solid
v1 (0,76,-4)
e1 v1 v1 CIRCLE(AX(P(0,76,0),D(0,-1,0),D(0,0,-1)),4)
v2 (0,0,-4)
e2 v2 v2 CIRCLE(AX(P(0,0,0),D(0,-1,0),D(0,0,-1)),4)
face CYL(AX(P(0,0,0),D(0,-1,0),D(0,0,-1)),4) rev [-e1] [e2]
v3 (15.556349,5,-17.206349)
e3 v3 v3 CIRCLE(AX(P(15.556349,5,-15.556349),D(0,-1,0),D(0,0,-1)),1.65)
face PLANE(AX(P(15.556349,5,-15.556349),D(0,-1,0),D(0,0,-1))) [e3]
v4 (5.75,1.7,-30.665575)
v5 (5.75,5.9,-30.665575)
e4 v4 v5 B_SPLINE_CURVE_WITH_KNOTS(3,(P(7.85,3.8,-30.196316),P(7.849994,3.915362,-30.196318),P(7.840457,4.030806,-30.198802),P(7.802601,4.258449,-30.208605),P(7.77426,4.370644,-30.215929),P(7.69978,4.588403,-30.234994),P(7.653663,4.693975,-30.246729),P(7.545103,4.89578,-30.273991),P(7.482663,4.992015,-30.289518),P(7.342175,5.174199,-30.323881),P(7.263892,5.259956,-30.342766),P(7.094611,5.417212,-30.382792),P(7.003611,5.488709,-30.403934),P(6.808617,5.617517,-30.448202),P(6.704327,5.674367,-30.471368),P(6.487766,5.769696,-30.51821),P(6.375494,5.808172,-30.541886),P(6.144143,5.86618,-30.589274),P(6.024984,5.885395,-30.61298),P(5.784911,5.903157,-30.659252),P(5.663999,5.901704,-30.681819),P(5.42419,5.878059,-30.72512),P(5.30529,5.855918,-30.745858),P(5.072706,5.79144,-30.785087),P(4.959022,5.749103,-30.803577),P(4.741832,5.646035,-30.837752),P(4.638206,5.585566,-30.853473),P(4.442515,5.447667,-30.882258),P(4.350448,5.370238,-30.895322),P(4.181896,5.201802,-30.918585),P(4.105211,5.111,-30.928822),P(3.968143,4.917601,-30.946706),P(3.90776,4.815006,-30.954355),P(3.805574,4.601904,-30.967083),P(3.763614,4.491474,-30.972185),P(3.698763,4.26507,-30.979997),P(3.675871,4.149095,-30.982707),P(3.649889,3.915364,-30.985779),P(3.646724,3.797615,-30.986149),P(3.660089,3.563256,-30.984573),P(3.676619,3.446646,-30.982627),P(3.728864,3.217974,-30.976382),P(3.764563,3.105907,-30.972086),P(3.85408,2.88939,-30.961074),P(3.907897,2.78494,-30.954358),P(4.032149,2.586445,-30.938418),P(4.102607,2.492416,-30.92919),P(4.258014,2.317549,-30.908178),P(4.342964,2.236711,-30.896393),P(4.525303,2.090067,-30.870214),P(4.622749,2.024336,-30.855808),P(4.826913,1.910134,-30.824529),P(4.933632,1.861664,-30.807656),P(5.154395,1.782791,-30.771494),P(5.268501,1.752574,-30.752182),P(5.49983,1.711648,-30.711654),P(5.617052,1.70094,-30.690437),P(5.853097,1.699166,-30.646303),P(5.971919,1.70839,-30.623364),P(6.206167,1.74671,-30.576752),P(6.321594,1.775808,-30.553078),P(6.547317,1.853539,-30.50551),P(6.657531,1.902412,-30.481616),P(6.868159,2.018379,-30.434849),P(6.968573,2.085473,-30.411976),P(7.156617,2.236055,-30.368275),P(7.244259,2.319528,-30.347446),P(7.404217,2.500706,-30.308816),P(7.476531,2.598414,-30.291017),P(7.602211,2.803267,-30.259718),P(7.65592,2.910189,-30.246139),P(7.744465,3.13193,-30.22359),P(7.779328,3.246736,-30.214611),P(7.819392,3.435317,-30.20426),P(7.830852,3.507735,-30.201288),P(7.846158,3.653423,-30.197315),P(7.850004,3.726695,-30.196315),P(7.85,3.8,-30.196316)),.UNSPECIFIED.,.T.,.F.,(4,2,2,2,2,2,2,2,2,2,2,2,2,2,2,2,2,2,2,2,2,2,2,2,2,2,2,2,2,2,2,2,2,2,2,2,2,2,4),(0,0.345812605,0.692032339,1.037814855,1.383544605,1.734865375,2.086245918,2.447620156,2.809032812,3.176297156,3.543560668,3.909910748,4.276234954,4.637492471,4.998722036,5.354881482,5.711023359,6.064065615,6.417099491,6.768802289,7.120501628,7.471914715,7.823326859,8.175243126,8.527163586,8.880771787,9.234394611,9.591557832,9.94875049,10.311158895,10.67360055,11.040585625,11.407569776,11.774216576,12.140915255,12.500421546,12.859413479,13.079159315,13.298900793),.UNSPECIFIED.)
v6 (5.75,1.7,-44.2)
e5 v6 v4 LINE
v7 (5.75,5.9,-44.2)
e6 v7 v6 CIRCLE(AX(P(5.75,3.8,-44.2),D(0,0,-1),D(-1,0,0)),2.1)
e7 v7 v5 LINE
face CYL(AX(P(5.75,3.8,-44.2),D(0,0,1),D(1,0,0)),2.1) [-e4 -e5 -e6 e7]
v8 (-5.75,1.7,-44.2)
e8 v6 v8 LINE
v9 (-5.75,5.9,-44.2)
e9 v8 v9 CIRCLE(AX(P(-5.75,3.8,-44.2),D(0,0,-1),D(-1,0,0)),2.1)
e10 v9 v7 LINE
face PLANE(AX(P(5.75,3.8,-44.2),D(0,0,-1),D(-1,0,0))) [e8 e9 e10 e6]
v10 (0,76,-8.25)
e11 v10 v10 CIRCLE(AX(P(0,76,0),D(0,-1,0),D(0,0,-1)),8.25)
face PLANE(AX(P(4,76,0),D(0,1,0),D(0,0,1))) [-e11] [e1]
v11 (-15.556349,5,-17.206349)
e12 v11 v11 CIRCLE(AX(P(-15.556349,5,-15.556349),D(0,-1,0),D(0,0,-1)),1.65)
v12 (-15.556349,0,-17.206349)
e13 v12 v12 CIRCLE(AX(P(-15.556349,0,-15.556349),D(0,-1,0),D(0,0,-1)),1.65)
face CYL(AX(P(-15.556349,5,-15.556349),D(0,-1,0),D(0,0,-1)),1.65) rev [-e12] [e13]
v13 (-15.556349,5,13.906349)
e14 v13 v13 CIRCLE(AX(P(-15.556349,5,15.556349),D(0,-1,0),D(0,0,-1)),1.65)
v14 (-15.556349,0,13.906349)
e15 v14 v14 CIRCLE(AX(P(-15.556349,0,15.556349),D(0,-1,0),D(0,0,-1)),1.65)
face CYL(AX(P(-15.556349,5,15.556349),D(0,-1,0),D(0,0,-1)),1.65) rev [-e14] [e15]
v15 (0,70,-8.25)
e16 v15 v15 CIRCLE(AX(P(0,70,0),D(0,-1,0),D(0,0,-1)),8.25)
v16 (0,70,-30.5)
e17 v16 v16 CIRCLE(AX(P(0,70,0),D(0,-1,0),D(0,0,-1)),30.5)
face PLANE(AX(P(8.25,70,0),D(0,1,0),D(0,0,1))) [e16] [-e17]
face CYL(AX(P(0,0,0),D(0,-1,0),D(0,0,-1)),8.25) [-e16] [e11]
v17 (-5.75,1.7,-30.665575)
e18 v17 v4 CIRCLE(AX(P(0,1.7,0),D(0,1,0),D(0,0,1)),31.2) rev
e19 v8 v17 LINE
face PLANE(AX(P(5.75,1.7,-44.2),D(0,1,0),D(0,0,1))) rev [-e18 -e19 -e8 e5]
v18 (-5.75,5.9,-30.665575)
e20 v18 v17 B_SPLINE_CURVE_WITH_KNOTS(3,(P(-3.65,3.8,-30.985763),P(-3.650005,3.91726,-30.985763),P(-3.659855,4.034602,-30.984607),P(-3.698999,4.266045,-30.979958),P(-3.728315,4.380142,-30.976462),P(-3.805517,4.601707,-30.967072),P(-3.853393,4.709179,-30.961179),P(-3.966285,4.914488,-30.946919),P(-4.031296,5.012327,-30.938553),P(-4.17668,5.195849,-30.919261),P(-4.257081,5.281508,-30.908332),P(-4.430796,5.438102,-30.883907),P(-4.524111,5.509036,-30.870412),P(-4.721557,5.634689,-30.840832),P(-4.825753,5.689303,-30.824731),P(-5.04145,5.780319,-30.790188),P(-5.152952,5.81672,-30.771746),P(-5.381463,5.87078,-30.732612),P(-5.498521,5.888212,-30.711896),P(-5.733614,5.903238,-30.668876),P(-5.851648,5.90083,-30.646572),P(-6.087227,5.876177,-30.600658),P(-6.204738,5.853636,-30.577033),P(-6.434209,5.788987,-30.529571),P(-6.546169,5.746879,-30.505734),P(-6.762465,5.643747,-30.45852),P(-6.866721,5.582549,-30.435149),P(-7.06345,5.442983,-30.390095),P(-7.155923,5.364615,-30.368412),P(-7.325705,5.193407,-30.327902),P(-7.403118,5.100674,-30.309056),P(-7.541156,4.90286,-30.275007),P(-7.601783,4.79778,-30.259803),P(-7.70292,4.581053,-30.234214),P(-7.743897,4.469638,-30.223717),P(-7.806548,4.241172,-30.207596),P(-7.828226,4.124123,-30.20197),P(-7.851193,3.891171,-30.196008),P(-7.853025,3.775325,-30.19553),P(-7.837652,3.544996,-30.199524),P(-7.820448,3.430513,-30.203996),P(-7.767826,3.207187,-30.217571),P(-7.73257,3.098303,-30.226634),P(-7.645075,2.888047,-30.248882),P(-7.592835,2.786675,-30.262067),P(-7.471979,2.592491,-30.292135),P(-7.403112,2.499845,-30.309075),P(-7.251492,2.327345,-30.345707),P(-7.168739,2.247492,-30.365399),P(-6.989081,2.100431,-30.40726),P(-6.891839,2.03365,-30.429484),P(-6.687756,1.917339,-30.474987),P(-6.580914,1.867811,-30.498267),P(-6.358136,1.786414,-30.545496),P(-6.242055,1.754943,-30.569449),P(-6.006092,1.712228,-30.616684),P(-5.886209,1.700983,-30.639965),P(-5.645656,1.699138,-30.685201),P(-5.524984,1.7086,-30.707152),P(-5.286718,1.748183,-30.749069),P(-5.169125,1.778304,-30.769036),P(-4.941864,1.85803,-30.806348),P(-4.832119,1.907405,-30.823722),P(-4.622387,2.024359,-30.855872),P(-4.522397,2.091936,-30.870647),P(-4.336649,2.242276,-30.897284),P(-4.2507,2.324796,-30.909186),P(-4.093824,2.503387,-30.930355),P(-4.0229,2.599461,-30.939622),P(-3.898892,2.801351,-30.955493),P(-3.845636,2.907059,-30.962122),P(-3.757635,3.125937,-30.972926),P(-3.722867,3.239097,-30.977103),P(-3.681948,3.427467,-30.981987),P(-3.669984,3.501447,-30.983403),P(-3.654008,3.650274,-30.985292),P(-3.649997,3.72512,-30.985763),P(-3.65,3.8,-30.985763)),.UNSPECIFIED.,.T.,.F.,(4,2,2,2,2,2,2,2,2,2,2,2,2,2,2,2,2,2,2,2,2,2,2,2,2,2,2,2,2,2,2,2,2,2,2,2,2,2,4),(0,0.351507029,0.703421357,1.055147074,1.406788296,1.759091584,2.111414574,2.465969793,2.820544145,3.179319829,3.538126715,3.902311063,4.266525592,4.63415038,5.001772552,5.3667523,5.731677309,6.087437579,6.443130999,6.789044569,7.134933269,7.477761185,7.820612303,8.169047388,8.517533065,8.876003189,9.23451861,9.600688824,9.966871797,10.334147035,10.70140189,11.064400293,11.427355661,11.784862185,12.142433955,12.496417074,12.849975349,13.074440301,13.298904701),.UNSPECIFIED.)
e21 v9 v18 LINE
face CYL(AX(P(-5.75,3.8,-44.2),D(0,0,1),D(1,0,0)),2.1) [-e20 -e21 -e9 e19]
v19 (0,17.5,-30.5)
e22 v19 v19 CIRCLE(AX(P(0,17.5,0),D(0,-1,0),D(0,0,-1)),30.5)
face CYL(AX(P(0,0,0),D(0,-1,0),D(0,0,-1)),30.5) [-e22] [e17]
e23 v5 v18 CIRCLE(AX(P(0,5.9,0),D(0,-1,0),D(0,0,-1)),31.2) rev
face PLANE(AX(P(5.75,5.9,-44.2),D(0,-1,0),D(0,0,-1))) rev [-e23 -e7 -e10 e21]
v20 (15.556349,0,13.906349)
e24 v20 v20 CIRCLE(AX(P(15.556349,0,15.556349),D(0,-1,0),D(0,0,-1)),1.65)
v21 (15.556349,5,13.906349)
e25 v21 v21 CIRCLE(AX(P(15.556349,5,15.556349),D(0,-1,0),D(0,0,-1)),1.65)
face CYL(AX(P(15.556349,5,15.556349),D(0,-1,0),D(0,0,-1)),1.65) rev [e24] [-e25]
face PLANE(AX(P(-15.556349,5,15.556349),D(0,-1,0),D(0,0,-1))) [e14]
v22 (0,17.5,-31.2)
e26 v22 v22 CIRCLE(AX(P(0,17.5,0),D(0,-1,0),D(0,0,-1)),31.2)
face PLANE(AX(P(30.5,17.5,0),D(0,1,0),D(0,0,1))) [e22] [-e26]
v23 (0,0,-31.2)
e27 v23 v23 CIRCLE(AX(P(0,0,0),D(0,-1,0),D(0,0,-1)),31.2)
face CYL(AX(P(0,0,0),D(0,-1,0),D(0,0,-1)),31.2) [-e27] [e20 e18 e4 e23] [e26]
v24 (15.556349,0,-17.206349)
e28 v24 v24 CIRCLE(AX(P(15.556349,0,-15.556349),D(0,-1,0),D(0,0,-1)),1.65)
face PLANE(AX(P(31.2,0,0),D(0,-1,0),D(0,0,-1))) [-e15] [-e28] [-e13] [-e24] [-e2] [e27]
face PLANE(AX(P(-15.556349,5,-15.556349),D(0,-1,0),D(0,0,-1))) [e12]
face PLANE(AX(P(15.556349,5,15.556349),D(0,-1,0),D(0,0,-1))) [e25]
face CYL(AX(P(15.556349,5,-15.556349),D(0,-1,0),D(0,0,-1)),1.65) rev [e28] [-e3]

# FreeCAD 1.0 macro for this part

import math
import FreeCAD as App
import Part
import Sketcher
from FreeCAD import Vector
Q = App.Units.Quantity


def add_polygon(sketch, points):
    """Adds a closed chain of lines whose ends are joined by coincident constraints."""
    first, n = sketch.GeometryCount, len(points)
    for a, b in zip(points, points[1:] + points[:1]):
        sketch.addGeometry(Part.LineSegment(App.Vector(*a, 0), App.Vector(*b, 0)), False)
    for i in range(n):
        sketch.addConstraint(Sketcher.Constraint("Coincident", first + i, 2, first + (i + 1) % n, 1))

doc = App.newDocument("Part")
body = doc.addObject("PartDesign::Body", "Body")

# Sketch on XY plane
sketch1 = doc.addObject("Sketcher::SketchObject", "Sketch")
body.addObject(sketch1)
sketch1.AttachmentSupport = (doc.XY_Plane, [""])
sketch1.MapMode = "FlatFace"
add_polygon(sketch1, [(4, 76), (4, 0), (31.2, 0), (31.2, 17.5), (30.5, 17.5), (30.5, 70), (8.2, 70), (8.2, 76)])  # lines 0-7
sketch1.addConstraint([
    Sketcher.Constraint("Vertical", 0),
    Sketcher.Constraint("Horizontal", 1),
    Sketcher.Constraint("Vertical", 2),
    Sketcher.Constraint("Horizontal", 3),
    Sketcher.Constraint("Vertical", 4),
    Sketcher.Constraint("Horizontal", 5),
    Sketcher.Constraint("Vertical", 6),
    Sketcher.Constraint("Horizontal", 7),
    Sketcher.Constraint("PointOnObject", 0, 2, -1),
    Sketcher.Constraint("DistanceY", 0, 2, 0, 1, Q("76 mm")),
    Sketcher.Constraint("DistanceY", 6, 1, 6, 2, Q("6 mm")),
    Sketcher.Constraint("DistanceX", 1, 1, 1, 2, Q("27.2 mm")),
    Sketcher.Constraint("DistanceX", 3, 2, 3, 1, Q("0.7 mm")),
    Sketcher.Constraint("DistanceY", 2, 1, 2, 2, Q("17.5 mm")),
    Sketcher.Constraint("DistanceX", -1, 1, 0, 2, Q("4 mm")),
    Sketcher.Constraint("DistanceX", 5, 2, 5, 1, Q("22.25 mm")),
])
revolution = doc.addObject("PartDesign::Revolution", "Revolution")
body.addObject(revolution)
revolution.Profile = sketch1
revolution.ReferenceAxis = (sketch1, ["V_Axis"])
revolution.Angle = 360

# Sketch on XZ plane
sketch2 = doc.addObject("Sketcher::SketchObject", "Sketch001")
body.addObject(sketch2)
sketch2.AttachmentSupport = (doc.XZ_Plane, [""])
sketch2.MapMode = "FlatFace"
sketch2.addGeometry([
    Part.Circle(Vector(15.6, -15.6, 0), Vector(0, 0, 1), 1.6),
    Part.Circle(Vector(-15.6, -15.6, 0), Vector(0, 0, 1), 1.6),
    Part.Circle(Vector(-15.6, 15.6, 0), Vector(0, 0, 1), 1.6),
    Part.Circle(Vector(15.6, 15.6, 0), Vector(0, 0, 1), 1.6),
], False)
sketch2.addConstraint([
    Sketcher.Constraint("Equal", 0, 1),
    Sketcher.Constraint("Equal", 1, 2),
    Sketcher.Constraint("Equal", 2, 3),
    Sketcher.Constraint("Symmetric", 0, 3, 2, 3, -1, 1),
    Sketcher.Constraint("Symmetric", 1, 3, 3, 3, -1, 1),
    Sketcher.Constraint("Symmetric", 0, 3, 1, 3, -2),
    Sketcher.Constraint("Diameter", 0, Q("3.3 mm")),
    Sketcher.Constraint("DistanceX", 1, 3, 0, 3, Q("31.112698 mm")),
    Sketcher.Constraint("DistanceY", 1, 3, 2, 3, Q("31.112698 mm")),
])
pocket1 = doc.addObject("PartDesign::Pocket", "Pocket")
body.addObject(pocket1)
pocket1.Profile = sketch2
pocket1.Length = 5

# Sketch on XY plane
sketch3 = doc.addObject("Sketcher::SketchObject", "Sketch002")
body.addObject(sketch3)
sketch3.AttachmentSupport = (doc.XY_Plane, [""])
sketch3.MapMode = "FlatFace"
sketch3.AttachmentOffset = App.Placement(Vector(0, 0, -29.2), App.Rotation())
sketch3.addGeometry([
    Part.LineSegment(Vector(-5.8, 5.9, 0), Vector(5.8, 5.9, 0)),
    Part.ArcOfCircle(Part.Circle(Vector(5.8, 3.8, 0), Vector(0, 0, 1), 2.1), math.radians(-90), math.radians(90)),
    Part.LineSegment(Vector(5.8, 1.7, 0), Vector(-5.8, 1.7, 0)),
    Part.ArcOfCircle(Part.Circle(Vector(-5.8, 3.8, 0), Vector(0, 0, 1), 2.1), math.radians(90), math.radians(270)),
], False)
sketch3.addConstraint([
    Sketcher.Constraint("Tangent", 0, 2, 1, 2),
    Sketcher.Constraint("Tangent", 1, 1, 2, 1),
    Sketcher.Constraint("Tangent", 2, 2, 3, 2),
    Sketcher.Constraint("Tangent", 3, 1, 0, 1),
    Sketcher.Constraint("Horizontal", 0),
    Sketcher.Constraint("Horizontal", 2),
    Sketcher.Constraint("Radius", 1, Q("2.1 mm")),
    Sketcher.Constraint("DistanceX", 0, 1, 0, 2, Q("11.5 mm")),
    Sketcher.Constraint("DistanceY", -1, 1, 1, 3, Q("3.8 mm")),
    Sketcher.Constraint("DistanceX", -1, 1, 1, 3, Q("5.75 mm")),
])
pad1 = doc.addObject("PartDesign::Pad", "Pad")
body.addObject(pad1)
pad1.Profile = sketch3
pad1.Length = 15
pad1.Reversed = True

doc.recompute()
